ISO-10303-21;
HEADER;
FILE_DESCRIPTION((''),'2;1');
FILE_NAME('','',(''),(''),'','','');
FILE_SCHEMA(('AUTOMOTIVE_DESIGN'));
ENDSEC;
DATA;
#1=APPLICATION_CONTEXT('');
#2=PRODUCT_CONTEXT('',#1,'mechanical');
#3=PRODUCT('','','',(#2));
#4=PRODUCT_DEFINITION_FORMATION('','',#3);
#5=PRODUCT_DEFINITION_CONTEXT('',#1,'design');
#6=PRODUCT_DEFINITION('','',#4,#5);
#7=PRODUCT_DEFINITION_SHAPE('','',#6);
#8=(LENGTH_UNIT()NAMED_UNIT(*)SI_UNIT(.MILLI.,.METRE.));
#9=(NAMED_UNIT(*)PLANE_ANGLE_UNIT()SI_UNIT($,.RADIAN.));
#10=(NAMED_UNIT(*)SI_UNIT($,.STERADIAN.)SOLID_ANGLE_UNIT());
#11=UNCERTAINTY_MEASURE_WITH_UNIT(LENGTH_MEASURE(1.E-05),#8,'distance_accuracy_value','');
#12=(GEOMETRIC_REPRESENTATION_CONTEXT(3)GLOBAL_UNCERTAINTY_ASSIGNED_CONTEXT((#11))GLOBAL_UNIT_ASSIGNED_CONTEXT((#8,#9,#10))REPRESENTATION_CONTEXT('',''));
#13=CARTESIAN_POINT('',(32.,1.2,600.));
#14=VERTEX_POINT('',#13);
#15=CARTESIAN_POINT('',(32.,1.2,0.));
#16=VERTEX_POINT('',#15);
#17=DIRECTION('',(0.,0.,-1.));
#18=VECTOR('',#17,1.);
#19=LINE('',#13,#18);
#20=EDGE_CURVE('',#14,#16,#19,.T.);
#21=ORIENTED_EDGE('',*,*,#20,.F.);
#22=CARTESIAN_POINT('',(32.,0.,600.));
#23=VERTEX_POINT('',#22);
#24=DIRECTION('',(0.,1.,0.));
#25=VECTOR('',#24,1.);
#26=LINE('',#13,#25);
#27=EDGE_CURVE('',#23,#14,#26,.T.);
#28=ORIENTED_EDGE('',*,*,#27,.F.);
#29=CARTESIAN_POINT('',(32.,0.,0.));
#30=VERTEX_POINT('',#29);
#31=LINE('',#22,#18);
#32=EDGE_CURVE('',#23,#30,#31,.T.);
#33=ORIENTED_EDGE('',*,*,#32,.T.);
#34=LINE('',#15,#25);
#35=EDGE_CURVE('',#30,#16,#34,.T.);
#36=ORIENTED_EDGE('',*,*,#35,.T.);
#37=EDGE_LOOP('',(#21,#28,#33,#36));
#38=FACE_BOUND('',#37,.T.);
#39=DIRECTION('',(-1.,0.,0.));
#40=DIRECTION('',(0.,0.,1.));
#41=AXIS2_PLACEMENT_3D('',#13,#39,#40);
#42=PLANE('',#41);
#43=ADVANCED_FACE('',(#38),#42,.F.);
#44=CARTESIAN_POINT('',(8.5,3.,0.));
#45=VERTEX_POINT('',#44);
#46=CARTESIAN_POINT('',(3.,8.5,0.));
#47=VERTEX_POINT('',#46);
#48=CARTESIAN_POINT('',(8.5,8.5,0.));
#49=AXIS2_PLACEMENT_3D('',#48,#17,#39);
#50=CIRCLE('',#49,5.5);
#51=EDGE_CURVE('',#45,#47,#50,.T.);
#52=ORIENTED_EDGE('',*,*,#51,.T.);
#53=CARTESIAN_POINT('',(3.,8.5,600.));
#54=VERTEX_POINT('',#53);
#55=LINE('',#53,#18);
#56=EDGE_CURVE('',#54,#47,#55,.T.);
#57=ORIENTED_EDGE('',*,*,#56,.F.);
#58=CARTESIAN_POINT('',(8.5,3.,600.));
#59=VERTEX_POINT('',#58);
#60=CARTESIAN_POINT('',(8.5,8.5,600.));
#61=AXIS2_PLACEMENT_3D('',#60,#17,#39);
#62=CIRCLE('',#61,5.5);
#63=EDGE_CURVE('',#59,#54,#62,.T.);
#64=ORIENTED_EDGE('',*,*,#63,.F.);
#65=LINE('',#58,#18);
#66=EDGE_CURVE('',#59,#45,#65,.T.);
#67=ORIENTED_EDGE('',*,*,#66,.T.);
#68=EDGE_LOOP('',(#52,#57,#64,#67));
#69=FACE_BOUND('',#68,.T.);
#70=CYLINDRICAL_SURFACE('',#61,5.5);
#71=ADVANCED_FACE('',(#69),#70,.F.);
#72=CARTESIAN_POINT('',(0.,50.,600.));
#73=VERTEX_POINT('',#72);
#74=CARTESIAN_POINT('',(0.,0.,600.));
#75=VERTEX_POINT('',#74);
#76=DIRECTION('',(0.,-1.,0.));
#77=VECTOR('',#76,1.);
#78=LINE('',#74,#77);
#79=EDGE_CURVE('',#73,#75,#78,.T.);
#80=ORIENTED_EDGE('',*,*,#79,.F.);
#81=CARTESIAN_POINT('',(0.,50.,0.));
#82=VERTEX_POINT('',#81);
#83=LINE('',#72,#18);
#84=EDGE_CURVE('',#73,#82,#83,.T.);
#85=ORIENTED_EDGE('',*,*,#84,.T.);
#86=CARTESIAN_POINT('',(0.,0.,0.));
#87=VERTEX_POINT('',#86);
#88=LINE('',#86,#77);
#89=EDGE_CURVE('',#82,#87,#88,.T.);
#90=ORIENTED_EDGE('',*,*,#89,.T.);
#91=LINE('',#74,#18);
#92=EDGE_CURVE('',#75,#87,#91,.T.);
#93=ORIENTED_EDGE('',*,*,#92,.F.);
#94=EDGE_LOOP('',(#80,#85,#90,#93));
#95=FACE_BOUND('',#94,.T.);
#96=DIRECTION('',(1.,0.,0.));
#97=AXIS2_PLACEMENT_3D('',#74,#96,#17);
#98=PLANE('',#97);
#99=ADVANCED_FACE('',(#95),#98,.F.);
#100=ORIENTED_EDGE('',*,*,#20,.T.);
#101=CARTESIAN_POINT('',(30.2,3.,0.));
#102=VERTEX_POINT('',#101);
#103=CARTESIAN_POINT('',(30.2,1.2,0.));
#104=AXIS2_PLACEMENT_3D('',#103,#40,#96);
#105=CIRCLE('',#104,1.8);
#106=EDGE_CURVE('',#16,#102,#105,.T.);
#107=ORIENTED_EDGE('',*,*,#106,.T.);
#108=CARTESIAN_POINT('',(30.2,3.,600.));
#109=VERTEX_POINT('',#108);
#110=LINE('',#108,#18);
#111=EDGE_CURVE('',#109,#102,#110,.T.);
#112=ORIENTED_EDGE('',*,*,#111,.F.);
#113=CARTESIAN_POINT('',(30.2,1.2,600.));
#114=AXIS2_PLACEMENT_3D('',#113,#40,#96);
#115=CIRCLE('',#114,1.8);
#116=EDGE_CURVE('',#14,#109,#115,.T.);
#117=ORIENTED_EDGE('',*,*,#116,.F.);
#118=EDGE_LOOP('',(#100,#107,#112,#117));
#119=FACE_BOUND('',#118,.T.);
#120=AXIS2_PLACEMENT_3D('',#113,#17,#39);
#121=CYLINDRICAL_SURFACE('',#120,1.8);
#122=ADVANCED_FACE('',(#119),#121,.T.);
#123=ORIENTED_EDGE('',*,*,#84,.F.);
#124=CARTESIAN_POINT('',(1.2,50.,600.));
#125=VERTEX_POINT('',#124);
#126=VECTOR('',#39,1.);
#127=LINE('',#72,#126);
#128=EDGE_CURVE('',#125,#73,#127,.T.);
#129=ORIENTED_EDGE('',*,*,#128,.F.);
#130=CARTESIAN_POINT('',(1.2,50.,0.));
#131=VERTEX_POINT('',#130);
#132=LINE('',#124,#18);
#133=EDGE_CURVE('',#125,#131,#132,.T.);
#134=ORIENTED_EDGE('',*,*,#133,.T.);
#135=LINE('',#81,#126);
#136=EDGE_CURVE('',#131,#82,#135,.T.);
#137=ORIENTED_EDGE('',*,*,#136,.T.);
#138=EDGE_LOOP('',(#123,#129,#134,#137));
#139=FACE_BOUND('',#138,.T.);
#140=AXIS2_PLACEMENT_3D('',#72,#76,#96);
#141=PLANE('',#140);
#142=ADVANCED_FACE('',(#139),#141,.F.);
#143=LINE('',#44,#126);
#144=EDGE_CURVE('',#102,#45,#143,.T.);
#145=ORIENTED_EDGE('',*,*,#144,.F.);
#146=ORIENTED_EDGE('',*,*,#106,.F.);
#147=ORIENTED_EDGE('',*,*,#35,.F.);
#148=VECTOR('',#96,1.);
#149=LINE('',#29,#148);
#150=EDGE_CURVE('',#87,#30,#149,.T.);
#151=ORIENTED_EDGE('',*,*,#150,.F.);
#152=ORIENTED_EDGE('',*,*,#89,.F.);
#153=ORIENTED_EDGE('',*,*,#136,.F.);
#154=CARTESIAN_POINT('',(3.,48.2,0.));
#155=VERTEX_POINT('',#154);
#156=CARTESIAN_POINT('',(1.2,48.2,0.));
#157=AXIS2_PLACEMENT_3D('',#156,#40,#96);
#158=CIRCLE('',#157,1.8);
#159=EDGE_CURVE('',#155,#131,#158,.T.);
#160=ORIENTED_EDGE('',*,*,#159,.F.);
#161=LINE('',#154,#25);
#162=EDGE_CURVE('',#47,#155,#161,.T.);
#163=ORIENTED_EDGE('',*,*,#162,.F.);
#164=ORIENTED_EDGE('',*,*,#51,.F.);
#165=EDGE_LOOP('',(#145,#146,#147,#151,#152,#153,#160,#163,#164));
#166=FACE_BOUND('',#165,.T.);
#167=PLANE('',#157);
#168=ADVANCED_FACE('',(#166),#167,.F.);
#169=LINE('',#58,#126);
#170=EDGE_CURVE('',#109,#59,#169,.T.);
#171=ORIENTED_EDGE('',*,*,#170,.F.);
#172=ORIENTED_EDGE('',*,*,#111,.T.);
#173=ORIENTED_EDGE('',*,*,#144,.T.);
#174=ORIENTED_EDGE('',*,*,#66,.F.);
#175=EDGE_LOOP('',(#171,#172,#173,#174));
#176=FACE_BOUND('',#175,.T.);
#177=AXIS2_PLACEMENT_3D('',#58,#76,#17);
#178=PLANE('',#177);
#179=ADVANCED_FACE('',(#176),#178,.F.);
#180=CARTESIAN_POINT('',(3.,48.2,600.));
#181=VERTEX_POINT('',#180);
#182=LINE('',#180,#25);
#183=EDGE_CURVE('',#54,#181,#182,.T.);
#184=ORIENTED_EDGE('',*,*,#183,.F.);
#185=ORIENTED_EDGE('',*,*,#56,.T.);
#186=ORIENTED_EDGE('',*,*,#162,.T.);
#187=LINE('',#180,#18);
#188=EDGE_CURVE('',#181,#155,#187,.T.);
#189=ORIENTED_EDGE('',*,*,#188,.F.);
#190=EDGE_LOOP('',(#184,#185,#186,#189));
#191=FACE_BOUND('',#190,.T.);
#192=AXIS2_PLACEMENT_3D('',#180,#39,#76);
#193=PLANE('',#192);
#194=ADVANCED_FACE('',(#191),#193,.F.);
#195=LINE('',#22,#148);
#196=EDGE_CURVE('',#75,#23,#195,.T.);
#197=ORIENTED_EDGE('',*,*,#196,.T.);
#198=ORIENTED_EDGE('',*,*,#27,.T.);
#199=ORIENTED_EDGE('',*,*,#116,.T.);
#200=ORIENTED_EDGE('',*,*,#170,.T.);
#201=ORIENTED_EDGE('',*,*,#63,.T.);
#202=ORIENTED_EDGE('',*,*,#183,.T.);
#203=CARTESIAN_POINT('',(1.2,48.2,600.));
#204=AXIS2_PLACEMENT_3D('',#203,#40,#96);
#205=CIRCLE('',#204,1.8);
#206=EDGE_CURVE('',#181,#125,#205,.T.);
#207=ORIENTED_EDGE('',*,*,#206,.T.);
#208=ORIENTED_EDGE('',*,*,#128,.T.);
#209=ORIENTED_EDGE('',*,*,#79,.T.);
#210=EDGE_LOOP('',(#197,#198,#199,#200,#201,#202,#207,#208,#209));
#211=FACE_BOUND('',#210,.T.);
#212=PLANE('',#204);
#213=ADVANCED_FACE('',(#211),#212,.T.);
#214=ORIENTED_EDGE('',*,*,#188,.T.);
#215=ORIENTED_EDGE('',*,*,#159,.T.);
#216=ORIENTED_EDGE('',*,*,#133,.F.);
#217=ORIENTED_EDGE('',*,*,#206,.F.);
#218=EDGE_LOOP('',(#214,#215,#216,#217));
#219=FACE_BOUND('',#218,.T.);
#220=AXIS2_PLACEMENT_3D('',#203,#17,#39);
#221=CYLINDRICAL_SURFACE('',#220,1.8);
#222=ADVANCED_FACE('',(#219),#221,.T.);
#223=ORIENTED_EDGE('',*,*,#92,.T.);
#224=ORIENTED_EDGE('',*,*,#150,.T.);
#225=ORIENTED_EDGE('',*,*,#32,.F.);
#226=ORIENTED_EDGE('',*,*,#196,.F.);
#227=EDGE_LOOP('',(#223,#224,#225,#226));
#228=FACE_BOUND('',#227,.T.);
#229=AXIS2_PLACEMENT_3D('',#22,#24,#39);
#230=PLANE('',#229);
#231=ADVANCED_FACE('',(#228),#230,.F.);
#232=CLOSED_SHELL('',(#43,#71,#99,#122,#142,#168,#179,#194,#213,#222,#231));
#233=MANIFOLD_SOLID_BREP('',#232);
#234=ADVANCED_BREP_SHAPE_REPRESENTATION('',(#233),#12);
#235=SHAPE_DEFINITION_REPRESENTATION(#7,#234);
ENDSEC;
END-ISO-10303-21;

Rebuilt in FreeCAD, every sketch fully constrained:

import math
import FreeCAD as App
import Part
import Sketcher
from FreeCAD import Vector

doc = App.newDocument("Part")
params = doc.addObject("Spreadsheet::Sheet", "Params")
for row, (alias, value) in enumerate([
    ("sketch1_radius", "1.8 mm"),
    ("sketch1_radius2", "5.5 mm"),
    ("sketch1_width", "32 mm"),
    ("sketch1_height", "50 mm"),
    ("sketch1_width2", "21.7 mm"),
    ("pad1_length", "600 mm"),
], start=1):
    params.set(f"A{row}", alias)
    params.set(f"B{row}", "=" + value)
    params.setAlias(f"B{row}", alias)

body = doc.addObject("PartDesign::Body", "Body")

sketch1 = body.newObject("Sketcher::SketchObject", "Sketch")
sketch1.AttachmentSupport = (doc.getObject("XY_Plane"), [""])
sketch1.MapMode = "FlatFace"
sketch1.addGeometry([
    Part.LineSegment(Vector(0, 50, 0), Vector(0, 0, 0)),
    Part.LineSegment(Vector(0, 0, 0), Vector(32, 0, 0)),
    Part.LineSegment(Vector(32, 0, 0), Vector(32, 1.2, 0)),
    Part.ArcOfCircle(Part.Circle(Vector(30.2, 1.2, 0), Vector(0, 0, 1), 1.8), math.radians(0), math.radians(90)),
    Part.LineSegment(Vector(30.2, 3, 0), Vector(8.5, 3, 0)),
    Part.ArcOfCircle(Part.Circle(Vector(8.5, 8.5, 0), Vector(0, 0, 1), 5.5), math.radians(180), math.radians(270)),
    Part.LineSegment(Vector(3, 8.5, 0), Vector(3, 48.2, 0)),
    Part.ArcOfCircle(Part.Circle(Vector(1.2, 48.2, 0), Vector(0, 0, 1), 1.8), math.radians(0), math.radians(90)),
    Part.LineSegment(Vector(1.2, 50, 0), Vector(0, 50, 0)),
], False)
sketch1.addConstraint([
    Sketcher.Constraint("Coincident", 0, 2, 1, 1),
    Sketcher.Constraint("Coincident", 1, 2, 2, 1),
    Sketcher.Constraint("Tangent", 2, 2, 3, 1),
    Sketcher.Constraint("Tangent", 3, 2, 4, 1),
    Sketcher.Constraint("Tangent", 4, 2, 5, 2),
    Sketcher.Constraint("Tangent", 5, 1, 6, 1),
    Sketcher.Constraint("Tangent", 6, 2, 7, 1),
    Sketcher.Constraint("Tangent", 7, 2, 8, 1),
    Sketcher.Constraint("Coincident", 8, 2, 0, 1),
    Sketcher.Constraint("Vertical", 0),
    Sketcher.Constraint("Horizontal", 1),
    Sketcher.Constraint("Vertical", 2),
    Sketcher.Constraint("Horizontal", 4),
    Sketcher.Constraint("Vertical", 6),
    Sketcher.Constraint("Horizontal", 8),
    Sketcher.Constraint("Coincident", 0, 2, -1, 1),
    Sketcher.Constraint("Equal", 3, 7),
    Sketcher.Constraint("Equal", 8, 2),
    Sketcher.Constraint("Radius", 3, 1.8),
    Sketcher.Constraint("Radius", 5, 5.5),
    Sketcher.Constraint("DistanceX", 1, 1, 1, 2, 32.0),
    Sketcher.Constraint("DistanceY", 0, 2, 0, 1, 50.0),
    Sketcher.Constraint("DistanceX", 4, 2, 4, 1, 21.7),
])
sketch1.setExpression("Constraints[18]", "Params.sketch1_radius")
sketch1.setExpression("Constraints[19]", "Params.sketch1_radius2")
sketch1.setExpression("Constraints[20]", "Params.sketch1_width")
sketch1.setExpression("Constraints[21]", "Params.sketch1_height")
sketch1.setExpression("Constraints[22]", "Params.sketch1_width2")
pad1 = body.newObject("PartDesign::Pad", "Pad")
pad1.Profile = sketch1
pad1.setExpression("Length", "Params.pad1_length")

doc.recompute()
